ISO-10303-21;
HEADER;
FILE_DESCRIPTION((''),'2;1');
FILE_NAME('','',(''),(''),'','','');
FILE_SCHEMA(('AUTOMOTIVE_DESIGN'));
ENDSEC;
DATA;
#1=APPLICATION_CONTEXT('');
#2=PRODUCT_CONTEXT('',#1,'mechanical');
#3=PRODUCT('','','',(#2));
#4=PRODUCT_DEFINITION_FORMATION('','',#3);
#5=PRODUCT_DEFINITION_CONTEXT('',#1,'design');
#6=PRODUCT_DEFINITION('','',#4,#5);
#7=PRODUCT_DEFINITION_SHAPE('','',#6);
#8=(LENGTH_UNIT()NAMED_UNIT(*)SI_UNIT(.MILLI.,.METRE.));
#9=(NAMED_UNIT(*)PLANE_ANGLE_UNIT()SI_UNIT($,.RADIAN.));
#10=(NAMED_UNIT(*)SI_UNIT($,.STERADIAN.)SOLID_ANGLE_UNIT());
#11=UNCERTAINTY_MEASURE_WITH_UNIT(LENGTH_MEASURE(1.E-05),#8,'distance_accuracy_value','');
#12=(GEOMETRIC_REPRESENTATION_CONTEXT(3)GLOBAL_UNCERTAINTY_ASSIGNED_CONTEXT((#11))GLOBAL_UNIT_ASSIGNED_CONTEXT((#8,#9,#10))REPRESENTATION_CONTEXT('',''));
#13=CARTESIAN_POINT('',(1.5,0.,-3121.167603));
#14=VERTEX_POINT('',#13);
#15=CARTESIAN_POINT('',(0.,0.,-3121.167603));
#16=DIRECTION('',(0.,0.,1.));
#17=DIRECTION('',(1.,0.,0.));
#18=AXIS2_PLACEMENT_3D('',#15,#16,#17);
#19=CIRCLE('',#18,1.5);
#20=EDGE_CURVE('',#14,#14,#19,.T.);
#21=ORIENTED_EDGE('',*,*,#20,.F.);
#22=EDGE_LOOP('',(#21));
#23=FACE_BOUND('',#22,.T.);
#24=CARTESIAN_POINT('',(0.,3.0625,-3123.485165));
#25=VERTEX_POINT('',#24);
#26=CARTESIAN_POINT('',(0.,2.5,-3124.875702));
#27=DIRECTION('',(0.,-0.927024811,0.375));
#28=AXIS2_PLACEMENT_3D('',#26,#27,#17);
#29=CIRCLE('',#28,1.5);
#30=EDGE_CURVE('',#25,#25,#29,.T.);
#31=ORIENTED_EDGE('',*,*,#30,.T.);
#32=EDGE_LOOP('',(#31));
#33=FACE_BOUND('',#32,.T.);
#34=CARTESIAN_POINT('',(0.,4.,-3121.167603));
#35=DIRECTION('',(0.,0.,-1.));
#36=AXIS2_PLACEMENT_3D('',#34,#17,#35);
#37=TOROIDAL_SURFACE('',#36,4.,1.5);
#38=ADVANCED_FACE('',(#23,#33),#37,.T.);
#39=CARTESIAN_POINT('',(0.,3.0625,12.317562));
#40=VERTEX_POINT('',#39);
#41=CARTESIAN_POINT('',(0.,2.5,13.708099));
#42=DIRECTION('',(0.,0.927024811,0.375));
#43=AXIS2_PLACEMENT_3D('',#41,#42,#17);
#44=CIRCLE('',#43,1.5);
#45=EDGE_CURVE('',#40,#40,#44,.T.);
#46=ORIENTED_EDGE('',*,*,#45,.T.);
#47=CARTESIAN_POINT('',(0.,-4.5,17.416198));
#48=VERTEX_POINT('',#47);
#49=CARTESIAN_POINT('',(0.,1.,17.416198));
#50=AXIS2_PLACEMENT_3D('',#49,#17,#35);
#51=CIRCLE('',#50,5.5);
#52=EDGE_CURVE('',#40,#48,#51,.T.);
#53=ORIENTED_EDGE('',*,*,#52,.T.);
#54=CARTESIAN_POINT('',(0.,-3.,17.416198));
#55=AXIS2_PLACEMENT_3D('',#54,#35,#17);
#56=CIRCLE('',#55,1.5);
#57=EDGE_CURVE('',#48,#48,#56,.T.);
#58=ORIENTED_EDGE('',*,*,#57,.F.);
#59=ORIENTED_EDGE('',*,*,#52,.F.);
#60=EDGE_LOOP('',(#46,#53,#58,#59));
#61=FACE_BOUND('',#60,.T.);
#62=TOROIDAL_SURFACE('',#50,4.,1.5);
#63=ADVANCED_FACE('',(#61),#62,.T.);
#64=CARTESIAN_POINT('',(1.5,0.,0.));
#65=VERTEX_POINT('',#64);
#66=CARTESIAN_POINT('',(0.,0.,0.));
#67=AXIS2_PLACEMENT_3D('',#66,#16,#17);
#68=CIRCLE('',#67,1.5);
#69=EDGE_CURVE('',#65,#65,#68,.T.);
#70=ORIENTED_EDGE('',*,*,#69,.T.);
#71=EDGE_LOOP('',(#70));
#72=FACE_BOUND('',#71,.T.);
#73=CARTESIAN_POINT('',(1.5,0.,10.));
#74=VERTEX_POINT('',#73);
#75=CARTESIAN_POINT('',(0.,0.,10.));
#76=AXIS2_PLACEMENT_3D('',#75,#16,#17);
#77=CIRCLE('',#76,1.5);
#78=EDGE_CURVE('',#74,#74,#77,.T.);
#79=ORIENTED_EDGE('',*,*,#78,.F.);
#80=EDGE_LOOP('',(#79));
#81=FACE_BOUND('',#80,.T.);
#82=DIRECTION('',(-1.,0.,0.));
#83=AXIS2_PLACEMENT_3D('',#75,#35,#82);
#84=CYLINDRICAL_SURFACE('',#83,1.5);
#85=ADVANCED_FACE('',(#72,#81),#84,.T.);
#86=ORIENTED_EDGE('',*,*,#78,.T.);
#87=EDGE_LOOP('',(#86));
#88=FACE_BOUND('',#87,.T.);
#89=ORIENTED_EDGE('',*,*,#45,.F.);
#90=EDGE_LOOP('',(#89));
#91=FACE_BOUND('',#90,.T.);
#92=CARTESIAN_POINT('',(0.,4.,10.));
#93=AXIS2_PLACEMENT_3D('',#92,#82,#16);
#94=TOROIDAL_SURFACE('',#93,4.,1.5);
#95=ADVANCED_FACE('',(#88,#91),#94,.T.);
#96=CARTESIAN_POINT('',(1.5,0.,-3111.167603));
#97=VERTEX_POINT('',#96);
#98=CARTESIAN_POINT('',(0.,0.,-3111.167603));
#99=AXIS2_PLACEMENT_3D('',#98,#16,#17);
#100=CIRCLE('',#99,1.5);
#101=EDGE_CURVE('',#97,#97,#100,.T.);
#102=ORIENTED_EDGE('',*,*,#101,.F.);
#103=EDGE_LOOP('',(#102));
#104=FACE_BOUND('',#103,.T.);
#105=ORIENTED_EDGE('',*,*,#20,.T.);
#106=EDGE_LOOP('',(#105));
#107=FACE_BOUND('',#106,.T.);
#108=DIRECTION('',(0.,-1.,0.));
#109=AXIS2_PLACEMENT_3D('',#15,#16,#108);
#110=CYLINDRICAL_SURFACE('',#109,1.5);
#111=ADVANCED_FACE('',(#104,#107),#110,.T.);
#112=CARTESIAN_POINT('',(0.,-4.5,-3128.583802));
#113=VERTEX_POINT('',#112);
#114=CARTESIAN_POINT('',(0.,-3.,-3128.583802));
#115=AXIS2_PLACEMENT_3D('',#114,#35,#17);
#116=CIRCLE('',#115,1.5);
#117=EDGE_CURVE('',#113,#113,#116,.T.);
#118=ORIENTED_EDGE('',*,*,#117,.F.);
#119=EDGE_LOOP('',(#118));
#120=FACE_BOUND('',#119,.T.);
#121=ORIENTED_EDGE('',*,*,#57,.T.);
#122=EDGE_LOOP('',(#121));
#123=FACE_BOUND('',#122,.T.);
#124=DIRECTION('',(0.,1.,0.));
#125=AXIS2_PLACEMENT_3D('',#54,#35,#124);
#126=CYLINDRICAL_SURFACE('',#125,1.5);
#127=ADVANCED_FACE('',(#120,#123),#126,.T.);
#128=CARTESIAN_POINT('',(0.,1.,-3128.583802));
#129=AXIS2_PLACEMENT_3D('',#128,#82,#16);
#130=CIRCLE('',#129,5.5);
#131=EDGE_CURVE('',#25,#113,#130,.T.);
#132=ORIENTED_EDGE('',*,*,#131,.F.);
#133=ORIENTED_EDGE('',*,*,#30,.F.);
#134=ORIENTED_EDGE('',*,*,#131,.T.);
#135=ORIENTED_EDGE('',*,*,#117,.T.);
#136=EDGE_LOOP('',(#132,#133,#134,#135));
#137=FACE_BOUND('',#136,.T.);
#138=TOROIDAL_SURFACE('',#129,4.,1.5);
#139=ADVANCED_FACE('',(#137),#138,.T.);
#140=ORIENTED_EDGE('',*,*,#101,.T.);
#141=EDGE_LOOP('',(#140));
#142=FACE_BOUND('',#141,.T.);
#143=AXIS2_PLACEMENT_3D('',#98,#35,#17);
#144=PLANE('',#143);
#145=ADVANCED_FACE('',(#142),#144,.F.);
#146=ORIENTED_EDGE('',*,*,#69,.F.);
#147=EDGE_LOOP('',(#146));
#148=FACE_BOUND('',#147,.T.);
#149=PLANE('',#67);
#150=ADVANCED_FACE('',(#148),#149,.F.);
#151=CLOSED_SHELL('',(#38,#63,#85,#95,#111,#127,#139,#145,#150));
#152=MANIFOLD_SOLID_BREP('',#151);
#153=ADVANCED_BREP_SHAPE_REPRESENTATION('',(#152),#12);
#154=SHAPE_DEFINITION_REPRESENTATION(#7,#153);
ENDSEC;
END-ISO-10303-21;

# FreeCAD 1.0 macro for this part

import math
import FreeCAD as App
import Part
import Sketcher

doc = App.newDocument("Part")
body = doc.addObject("PartDesign::Body", "Body")

# Sketch on XY plane
sketch1 = doc.addObject("Sketcher::SketchObject", "Sketch")
body.addObject(sketch1)
sketch1.AttachmentSupport = (doc.XY_Plane, [""])
sketch1.MapMode = "FlatFace"
sketch1.addGeometry(Part.Circle(App.Vector(0, 0, 0), App.Vector(0, 0, 1), 1.5), False)
sketch1.addConstraint(Sketcher.Constraint("Coincident", 0, 3, -1, 1))
sketch1.addConstraint(Sketcher.Constraint("Diameter", 0, 3.0))

# Sketch on YZ plane
sketch2 = doc.addObject("Sketcher::SketchObject", "Sketch001")
body.addObject(sketch2)
sketch2.AttachmentSupport = (doc.YZ_Plane, [""])
sketch2.MapMode = "FlatFace"
sketch2.addGeometry(Part.LineSegment(App.Vector(-3, -1555.583802, 0), App.Vector(-3, 17.416198, 0)), False)
sketch2.addGeometry(Part.ArcOfCircle(Part.Circle(App.Vector(1, 17.416198, 0), App.Vector(0, 0, 1), 4), math.radians(-67.975687), math.radians(180)), False)
sketch2.addGeometry(Part.ArcOfCircle(Part.Circle(App.Vector(4, 10, 0), App.Vector(0, 0, 1), 4), math.radians(112.024313), math.radians(180)), False)
sketch2.addGeometry(Part.LineSegment(App.Vector(0, 10, 0), App.Vector(0, 0, 0)), False)
sketch2.addConstraint(Sketcher.Constraint("Tangent", 0, 2, 1, 2))
sketch2.addConstraint(Sketcher.Constraint("Tangent", 1, 1, 2, 1))
sketch2.addConstraint(Sketcher.Constraint("Tangent", 2, 2, 3, 1))
sketch2.addConstraint(Sketcher.Constraint("Vertical", 0))
sketch2.addConstraint(Sketcher.Constraint("Vertical", 3))
sketch2.addConstraint(Sketcher.Constraint("Coincident", 3, 2, -1, 1))
sketch2.addConstraint(Sketcher.Constraint("Equal", 1, 2))
sketch2.addConstraint(Sketcher.Constraint("Radius", 1, 4.0))
sketch2.addConstraint(Sketcher.Constraint("DistanceY", 0, 1, 0, 2, 1573.0))
sketch2.addConstraint(Sketcher.Constraint("DistanceY", 3, 2, 3, 1, 10.0))
sketch2.addConstraint(Sketcher.Constraint("DistanceX", -1, 1, 1, 3, 1.0))
doc.recompute()

additivepipe = doc.addObject("PartDesign::AdditivePipe", "AdditivePipe")
body.addObject(additivepipe)
additivepipe.Profile = sketch1
additivepipe.Spine = (sketch2, ["Edge1", "Edge2", "Edge3", "Edge4"])
doc.recompute()

datumplane = doc.addObject("PartDesign::Plane", "DatumPlane")
body.addObject(datumplane)
datumplane.AttachmentSupport = (doc.XY_Plane, [""])
datumplane.MapMode = "FlatFace"
datumplane.AttachmentOffset = App.Placement(App.Vector(0, 0, -1555.583802), App.Rotation())
mirrored = doc.addObject("PartDesign::Mirrored", "Mirrored")
body.addObject(mirrored)
mirrored.Originals = [additivepipe]
mirrored.MirrorPlane = (datumplane, [""])
body.Tip = mirrored

doc.recompute()
